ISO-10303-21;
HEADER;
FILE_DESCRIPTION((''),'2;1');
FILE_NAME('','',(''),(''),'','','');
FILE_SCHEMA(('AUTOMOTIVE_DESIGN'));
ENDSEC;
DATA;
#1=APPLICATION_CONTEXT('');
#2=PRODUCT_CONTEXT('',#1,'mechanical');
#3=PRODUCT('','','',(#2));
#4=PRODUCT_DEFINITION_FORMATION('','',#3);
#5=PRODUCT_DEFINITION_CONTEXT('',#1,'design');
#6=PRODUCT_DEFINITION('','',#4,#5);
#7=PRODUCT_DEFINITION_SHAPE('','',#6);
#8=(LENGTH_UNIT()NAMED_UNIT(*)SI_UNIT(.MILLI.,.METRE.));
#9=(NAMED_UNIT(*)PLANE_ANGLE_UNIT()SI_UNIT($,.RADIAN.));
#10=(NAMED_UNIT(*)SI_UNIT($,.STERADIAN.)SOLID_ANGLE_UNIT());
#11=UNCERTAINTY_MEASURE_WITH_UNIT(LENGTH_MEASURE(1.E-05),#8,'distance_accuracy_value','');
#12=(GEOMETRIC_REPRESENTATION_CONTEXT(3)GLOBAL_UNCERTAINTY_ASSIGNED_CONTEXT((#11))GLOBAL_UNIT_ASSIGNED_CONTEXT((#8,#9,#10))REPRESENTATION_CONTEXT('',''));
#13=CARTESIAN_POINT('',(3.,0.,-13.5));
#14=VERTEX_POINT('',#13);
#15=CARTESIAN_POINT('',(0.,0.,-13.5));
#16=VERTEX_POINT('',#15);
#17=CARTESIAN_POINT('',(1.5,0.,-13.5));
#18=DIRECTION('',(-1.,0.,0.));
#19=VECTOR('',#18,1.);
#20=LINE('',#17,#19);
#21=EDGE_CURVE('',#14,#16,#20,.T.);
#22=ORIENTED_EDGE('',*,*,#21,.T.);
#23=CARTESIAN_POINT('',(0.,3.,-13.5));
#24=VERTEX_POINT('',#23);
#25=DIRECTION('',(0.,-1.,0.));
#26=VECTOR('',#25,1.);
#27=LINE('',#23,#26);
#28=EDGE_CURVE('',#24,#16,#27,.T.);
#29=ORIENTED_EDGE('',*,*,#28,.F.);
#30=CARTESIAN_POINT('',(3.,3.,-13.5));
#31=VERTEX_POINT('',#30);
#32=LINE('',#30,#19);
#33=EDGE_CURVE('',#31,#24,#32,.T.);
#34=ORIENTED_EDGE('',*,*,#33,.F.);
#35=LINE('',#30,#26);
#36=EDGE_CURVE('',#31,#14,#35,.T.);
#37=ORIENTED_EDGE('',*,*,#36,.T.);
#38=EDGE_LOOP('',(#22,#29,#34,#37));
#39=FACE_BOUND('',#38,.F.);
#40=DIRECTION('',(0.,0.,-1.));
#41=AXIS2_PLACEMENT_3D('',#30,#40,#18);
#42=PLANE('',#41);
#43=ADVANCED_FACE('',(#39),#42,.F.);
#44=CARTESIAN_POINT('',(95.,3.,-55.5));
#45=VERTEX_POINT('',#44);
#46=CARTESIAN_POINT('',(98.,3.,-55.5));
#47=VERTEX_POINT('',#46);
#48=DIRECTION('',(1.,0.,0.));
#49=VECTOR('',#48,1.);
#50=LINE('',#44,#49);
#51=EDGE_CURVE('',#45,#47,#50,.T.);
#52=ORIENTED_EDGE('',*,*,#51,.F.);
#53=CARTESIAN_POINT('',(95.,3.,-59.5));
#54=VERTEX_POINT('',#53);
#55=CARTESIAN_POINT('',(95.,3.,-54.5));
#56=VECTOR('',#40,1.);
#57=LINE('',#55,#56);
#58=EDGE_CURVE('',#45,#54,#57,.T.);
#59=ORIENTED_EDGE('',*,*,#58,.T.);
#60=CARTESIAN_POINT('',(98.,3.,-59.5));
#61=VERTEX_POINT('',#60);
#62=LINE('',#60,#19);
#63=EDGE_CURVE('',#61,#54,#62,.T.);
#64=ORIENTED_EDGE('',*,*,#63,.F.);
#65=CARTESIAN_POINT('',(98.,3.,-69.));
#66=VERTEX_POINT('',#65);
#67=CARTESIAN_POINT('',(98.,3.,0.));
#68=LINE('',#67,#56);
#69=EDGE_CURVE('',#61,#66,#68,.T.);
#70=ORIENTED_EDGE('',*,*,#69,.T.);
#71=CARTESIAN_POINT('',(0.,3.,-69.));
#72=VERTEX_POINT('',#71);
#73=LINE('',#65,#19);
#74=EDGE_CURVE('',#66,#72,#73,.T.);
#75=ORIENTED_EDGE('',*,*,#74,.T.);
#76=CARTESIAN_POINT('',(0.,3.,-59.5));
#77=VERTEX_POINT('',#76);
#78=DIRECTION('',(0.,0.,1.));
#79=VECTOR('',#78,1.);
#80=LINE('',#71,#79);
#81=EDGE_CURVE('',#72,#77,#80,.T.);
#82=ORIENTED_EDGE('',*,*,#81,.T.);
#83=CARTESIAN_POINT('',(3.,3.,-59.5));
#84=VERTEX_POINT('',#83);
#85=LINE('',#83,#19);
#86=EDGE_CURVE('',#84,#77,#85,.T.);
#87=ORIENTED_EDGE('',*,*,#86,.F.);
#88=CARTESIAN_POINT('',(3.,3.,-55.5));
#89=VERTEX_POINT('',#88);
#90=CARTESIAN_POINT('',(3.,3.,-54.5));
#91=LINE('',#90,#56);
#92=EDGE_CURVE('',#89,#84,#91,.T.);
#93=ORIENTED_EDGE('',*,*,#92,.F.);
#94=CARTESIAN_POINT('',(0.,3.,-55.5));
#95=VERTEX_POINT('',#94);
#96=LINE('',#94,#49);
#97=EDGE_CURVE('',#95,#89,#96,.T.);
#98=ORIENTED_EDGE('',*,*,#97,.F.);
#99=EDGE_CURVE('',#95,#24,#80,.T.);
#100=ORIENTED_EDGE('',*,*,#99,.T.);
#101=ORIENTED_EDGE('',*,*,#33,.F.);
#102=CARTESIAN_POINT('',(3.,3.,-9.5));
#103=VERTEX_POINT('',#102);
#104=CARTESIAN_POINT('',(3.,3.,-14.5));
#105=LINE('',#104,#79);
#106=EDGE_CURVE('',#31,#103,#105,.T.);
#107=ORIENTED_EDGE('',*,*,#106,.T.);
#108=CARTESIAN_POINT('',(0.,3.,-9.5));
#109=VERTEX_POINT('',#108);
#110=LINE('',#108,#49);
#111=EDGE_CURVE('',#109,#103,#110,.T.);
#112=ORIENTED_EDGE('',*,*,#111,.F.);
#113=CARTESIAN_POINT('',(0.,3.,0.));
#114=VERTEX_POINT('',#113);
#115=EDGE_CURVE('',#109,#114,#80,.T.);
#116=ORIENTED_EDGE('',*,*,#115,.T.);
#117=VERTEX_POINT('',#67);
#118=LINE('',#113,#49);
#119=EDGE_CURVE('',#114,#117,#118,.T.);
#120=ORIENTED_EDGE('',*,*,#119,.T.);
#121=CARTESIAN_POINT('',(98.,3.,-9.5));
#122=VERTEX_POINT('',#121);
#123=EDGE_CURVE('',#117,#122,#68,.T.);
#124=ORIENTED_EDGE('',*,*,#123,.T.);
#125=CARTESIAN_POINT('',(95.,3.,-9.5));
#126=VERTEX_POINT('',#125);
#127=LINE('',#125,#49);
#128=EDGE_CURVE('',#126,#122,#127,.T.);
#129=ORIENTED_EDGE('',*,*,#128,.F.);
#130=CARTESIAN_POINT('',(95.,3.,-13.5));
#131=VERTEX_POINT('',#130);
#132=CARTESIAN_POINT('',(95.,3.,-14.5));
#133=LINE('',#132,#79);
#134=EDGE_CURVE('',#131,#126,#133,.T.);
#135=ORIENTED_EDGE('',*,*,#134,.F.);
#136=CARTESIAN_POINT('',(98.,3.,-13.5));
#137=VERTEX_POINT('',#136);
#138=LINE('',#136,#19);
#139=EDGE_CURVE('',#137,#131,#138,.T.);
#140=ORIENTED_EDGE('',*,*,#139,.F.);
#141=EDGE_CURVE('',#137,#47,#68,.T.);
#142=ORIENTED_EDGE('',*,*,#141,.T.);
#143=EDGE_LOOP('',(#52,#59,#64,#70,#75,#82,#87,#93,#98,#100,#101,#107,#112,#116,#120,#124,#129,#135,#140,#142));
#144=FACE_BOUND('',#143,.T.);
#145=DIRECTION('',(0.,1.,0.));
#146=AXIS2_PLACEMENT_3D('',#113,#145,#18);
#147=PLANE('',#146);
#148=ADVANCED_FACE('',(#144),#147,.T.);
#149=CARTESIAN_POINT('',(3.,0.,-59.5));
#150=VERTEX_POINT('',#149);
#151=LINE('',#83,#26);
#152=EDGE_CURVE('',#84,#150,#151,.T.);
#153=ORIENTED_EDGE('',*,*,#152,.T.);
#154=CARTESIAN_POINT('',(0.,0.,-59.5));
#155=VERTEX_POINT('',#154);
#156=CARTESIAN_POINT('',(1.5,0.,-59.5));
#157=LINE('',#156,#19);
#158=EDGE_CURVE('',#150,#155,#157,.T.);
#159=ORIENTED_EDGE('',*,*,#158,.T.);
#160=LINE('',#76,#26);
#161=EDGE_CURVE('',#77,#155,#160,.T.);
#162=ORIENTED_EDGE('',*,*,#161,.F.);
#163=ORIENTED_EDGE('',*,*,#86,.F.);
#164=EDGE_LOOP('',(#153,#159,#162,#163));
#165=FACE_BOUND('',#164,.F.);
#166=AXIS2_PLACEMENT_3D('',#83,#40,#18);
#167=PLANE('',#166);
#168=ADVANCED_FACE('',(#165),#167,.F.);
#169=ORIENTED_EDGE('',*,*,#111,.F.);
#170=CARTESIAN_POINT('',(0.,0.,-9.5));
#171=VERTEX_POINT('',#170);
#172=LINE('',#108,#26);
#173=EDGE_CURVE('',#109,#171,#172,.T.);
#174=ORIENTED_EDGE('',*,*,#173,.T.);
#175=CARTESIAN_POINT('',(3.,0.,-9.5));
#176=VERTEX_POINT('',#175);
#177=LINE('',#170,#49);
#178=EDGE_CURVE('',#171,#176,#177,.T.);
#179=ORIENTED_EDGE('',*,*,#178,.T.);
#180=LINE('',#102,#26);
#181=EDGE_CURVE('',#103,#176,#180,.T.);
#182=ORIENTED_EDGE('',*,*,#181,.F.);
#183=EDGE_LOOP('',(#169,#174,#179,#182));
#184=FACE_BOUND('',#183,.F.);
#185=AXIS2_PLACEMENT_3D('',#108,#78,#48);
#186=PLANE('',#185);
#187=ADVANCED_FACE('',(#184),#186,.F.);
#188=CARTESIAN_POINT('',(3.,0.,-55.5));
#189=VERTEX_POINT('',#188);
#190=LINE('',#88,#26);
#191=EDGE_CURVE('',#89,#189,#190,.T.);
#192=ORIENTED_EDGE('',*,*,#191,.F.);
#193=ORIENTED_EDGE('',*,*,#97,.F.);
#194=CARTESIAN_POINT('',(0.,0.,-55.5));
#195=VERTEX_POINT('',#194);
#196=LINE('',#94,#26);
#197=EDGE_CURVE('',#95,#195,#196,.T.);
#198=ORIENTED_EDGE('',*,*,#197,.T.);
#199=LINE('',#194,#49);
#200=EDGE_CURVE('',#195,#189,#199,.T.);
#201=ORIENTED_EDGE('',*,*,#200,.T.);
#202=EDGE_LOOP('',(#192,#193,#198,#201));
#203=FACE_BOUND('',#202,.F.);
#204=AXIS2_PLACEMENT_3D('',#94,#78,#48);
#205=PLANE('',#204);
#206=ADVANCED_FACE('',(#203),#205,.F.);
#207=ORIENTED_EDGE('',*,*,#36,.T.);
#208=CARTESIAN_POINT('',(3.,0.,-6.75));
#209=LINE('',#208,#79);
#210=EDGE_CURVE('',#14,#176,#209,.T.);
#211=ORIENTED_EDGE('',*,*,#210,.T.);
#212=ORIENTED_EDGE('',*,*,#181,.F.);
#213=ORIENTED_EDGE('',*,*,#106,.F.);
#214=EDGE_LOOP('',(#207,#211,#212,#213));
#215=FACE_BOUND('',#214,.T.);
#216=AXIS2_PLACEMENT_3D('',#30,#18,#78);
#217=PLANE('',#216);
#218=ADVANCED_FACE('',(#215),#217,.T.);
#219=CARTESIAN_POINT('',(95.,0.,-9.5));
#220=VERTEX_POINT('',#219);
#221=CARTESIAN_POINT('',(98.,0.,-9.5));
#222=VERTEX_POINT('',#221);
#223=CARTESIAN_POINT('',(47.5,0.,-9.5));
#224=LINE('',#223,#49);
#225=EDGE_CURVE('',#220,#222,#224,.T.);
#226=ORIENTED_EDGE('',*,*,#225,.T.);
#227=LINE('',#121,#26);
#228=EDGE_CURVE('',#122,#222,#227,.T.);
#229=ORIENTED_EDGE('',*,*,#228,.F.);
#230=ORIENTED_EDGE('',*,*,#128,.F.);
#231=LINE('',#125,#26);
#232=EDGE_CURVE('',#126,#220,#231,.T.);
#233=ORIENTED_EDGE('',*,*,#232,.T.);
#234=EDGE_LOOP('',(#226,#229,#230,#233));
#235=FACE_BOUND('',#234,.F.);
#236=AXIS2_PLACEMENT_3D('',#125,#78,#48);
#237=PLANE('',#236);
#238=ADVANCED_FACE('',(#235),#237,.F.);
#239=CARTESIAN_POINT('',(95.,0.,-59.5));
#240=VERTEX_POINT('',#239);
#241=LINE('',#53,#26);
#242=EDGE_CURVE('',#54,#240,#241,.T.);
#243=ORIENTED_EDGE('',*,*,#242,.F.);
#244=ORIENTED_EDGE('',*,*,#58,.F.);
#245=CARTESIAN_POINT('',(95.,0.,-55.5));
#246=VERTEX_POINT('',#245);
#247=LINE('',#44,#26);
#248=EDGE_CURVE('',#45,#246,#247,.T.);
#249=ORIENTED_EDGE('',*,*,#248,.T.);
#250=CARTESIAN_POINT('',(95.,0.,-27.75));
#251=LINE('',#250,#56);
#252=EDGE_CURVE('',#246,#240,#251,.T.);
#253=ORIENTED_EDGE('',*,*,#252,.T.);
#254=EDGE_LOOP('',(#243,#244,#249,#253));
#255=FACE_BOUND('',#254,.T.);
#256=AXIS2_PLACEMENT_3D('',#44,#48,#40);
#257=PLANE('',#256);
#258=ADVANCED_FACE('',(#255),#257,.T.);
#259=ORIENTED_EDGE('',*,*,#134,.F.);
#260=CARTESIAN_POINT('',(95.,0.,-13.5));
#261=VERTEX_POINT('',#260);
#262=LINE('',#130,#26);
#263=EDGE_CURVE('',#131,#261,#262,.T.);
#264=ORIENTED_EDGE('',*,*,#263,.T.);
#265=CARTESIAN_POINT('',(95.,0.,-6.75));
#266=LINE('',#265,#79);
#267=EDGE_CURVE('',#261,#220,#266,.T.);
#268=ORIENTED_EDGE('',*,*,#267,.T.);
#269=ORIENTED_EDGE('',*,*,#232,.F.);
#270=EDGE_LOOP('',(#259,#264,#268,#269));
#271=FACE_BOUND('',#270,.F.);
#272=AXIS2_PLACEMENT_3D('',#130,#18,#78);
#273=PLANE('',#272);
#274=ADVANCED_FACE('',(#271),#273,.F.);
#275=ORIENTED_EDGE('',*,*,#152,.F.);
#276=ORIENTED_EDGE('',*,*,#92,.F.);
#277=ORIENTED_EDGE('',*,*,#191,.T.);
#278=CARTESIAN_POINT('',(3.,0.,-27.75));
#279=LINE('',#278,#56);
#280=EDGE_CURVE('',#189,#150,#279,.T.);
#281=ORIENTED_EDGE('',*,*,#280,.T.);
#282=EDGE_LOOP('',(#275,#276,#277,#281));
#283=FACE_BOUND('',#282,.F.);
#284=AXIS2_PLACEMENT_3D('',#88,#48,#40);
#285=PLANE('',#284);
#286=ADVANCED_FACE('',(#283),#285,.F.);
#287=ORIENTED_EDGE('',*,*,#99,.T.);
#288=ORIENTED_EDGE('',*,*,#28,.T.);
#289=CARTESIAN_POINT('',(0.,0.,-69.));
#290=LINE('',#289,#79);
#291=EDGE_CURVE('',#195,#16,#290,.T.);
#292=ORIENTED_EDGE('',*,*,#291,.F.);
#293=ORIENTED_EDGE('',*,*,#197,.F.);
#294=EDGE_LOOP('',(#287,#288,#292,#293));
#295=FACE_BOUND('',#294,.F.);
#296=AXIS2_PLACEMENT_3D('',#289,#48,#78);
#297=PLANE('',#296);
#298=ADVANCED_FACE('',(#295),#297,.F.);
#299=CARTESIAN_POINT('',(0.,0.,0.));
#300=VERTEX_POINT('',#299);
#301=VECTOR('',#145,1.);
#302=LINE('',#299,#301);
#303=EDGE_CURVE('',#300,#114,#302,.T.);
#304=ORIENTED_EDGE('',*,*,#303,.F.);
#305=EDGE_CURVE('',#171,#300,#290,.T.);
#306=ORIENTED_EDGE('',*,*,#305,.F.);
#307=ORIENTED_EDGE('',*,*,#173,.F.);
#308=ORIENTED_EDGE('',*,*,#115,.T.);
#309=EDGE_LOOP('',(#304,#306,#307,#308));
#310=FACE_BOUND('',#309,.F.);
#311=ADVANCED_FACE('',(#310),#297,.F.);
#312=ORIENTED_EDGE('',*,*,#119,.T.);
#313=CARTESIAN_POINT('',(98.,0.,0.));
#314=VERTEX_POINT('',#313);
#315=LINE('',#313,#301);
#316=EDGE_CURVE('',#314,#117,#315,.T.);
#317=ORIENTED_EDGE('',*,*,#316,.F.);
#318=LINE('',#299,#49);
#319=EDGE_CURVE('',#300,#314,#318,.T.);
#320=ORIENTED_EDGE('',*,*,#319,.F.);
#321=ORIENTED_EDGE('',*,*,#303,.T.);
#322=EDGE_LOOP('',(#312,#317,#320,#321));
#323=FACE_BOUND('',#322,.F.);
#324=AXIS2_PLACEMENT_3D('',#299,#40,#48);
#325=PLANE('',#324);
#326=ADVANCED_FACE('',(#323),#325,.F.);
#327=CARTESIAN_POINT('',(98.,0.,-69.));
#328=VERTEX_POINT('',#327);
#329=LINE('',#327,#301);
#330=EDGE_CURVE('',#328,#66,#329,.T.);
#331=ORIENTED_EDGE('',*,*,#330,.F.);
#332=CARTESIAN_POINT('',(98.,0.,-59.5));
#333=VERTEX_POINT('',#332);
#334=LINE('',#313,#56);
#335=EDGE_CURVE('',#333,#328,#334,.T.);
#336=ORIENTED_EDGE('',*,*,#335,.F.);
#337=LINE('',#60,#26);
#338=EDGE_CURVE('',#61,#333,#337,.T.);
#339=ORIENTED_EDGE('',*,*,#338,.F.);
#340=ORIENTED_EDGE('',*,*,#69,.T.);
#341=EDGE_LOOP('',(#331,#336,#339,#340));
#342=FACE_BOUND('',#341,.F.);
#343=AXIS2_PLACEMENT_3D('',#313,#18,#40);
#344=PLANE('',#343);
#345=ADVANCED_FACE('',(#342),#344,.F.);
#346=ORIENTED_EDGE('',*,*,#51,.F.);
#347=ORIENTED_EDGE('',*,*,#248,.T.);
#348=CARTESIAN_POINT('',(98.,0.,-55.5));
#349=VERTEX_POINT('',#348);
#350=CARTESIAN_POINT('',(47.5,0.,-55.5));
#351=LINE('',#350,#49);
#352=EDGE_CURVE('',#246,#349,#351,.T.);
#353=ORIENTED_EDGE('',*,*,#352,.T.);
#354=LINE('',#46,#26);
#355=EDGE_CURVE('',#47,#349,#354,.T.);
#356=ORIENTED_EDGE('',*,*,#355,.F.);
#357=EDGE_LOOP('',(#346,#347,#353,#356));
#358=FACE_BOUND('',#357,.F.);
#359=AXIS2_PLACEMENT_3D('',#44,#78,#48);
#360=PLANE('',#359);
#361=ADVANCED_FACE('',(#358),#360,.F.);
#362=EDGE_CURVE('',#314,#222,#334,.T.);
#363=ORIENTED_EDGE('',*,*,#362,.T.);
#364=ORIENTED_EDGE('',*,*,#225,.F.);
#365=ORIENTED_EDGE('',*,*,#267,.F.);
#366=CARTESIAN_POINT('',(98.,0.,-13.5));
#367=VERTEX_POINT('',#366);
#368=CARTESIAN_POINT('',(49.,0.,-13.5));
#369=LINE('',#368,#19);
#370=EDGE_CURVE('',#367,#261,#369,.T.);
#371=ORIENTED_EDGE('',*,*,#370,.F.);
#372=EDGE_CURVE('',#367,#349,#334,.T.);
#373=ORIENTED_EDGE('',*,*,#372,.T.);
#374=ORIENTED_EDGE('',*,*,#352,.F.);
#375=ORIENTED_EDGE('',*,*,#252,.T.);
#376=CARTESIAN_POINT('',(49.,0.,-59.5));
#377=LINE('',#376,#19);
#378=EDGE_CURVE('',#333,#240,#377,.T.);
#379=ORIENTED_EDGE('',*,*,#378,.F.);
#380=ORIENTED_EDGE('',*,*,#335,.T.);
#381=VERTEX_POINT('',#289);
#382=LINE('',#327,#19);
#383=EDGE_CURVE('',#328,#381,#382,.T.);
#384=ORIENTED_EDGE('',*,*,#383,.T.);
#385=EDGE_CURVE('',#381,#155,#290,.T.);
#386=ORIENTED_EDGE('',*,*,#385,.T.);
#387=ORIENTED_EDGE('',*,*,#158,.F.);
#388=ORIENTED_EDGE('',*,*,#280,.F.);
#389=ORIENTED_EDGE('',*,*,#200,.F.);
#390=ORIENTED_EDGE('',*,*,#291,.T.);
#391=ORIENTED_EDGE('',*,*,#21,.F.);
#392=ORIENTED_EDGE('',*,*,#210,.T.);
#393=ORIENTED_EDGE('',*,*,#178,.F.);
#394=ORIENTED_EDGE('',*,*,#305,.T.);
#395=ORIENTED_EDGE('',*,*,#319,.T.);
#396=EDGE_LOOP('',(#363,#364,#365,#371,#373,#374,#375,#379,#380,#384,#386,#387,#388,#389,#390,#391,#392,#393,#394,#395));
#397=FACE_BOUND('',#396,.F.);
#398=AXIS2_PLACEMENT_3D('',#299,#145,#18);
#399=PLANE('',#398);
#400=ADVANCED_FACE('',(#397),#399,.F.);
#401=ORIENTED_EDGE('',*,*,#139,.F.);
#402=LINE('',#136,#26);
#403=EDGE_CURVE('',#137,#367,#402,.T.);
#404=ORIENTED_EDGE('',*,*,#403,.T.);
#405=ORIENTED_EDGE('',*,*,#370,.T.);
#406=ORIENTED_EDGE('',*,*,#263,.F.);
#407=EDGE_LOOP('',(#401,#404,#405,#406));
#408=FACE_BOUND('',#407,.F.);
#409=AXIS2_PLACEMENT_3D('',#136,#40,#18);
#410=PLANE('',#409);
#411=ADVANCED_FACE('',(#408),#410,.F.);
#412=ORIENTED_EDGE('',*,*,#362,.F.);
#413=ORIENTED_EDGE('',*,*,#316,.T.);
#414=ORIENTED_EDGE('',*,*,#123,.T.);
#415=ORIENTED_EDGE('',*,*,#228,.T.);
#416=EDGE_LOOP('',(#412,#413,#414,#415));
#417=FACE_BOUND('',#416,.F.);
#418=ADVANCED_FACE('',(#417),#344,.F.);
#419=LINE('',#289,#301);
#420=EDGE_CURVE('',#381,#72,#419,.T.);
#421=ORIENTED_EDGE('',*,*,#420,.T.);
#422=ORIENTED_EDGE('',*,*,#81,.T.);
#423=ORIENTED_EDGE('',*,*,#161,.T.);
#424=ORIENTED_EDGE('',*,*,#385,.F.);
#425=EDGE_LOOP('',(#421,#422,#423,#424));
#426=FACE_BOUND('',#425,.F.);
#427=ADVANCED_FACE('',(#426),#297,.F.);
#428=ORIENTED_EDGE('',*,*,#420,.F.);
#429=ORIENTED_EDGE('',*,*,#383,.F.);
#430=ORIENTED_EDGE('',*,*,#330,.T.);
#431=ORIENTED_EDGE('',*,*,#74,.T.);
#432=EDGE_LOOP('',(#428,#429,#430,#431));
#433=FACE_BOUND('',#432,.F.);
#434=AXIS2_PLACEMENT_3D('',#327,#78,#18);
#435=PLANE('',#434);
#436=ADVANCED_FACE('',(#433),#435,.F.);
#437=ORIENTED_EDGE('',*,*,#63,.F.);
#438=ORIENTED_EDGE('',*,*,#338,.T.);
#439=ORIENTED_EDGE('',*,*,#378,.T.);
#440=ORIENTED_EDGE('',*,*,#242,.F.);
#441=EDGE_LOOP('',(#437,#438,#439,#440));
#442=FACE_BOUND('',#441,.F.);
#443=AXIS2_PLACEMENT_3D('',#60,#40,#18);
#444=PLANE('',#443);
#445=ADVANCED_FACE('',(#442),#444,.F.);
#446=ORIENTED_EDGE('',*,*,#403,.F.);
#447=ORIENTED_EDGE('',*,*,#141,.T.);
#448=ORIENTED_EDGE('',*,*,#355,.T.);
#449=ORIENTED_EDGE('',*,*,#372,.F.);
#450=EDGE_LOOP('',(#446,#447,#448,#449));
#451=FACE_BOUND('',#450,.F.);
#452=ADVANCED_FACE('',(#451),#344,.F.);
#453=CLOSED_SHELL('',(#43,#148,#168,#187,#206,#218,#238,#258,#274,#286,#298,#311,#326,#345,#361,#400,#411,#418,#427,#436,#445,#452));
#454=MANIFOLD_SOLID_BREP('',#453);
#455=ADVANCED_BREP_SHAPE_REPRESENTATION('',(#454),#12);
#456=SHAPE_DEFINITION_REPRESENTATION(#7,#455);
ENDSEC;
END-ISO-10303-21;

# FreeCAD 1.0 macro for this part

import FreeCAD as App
import Part
import Sketcher

V = App.Vector

doc = App.newDocument("Part")
body = doc.addObject("PartDesign::Body", "Body")

sketch1 = body.newObject("Sketcher::SketchObject", "Sketch")
sketch1.AttachmentSupport = (doc.getObject("XZ_Plane"), [""])
sketch1.MapMode = "FlatFace"
sketch1.addGeometry([
    Part.LineSegment(V(0, -69, 0), V(0, 0, 0)),
    Part.LineSegment(V(0, 0, 0), V(98, 0, 0)),
    Part.LineSegment(V(98, 0, 0), V(98, -69, 0)),
    Part.LineSegment(V(98, -69, 0), V(0, -69, 0)),
], False)
sketch1.addConstraint([
    Sketcher.Constraint("Coincident", 0, 2, 1, 1),
    Sketcher.Constraint("Coincident", 1, 2, 2, 1),
    Sketcher.Constraint("Coincident", 2, 2, 3, 1),
    Sketcher.Constraint("Coincident", 3, 2, 0, 1),
    Sketcher.Constraint("Vertical", 0),
    Sketcher.Constraint("Horizontal", 1),
    Sketcher.Constraint("Vertical", 2),
    Sketcher.Constraint("Horizontal", 3),
    Sketcher.Constraint("Coincident", 0, 2, -1, 1),
    Sketcher.Constraint("DistanceX", 1, 1, 1, 2, 98.0),
    Sketcher.Constraint("DistanceY", 0, 1, 0, 2, 69.0),
])
pad1 = body.newObject("PartDesign::Pad", "Pad")
pad1.Profile = sketch1
pad1.Length = 3
pad1.Reversed = True

sketch2 = body.newObject("Sketcher::SketchObject", "Sketch001")
sketch2.AttachmentSupport = (doc.getObject("XZ_Plane"), [""])
sketch2.MapMode = "FlatFace"
sketch2.AttachmentOffset = App.Placement(V(0, 0, -3), App.Rotation())
sketch2.addGeometry([
    Part.LineSegment(V(3, -59.5, 0), V(0, -59.5, 0)),
    Part.LineSegment(V(0, -59.5, 0), V(0, -55.5, 0)),
    Part.LineSegment(V(0, -55.5, 0), V(3, -55.5, 0)),
    Part.LineSegment(V(3, -55.5, 0), V(3, -59.5, 0)),
    Part.LineSegment(V(98, -55.5, 0), V(98, -59.5, 0)),
    Part.LineSegment(V(98, -59.5, 0), V(95, -59.5, 0)),
    Part.LineSegment(V(95, -59.5, 0), V(95, -55.5, 0)),
    Part.LineSegment(V(95, -55.5, 0), V(98, -55.5, 0)),
    Part.LineSegment(V(3, -13.5, 0), V(0, -13.5, 0)),
    Part.LineSegment(V(0, -13.5, 0), V(0, -9.5, 0)),
    Part.LineSegment(V(0, -9.5, 0), V(3, -9.5, 0)),
    Part.LineSegment(V(3, -9.5, 0), V(3, -13.5, 0)),
    Part.LineSegment(V(98, -9.5, 0), V(98, -13.5, 0)),
    Part.LineSegment(V(98, -13.5, 0), V(95, -13.5, 0)),
    Part.LineSegment(V(95, -13.5, 0), V(95, -9.5, 0)),
    Part.LineSegment(V(95, -9.5, 0), V(98, -9.5, 0)),
], False)
sketch2.addConstraint([
    Sketcher.Constraint("Coincident", 0, 2, 1, 1),
    Sketcher.Constraint("Coincident", 1, 2, 2, 1),
    Sketcher.Constraint("Coincident", 2, 2, 3, 1),
    Sketcher.Constraint("Coincident", 3, 2, 0, 1),
    Sketcher.Constraint("Coincident", 4, 2, 5, 1),
    Sketcher.Constraint("Coincident", 5, 2, 6, 1),
    Sketcher.Constraint("Coincident", 6, 2, 7, 1),
    Sketcher.Constraint("Coincident", 7, 2, 4, 1),
    Sketcher.Constraint("Coincident", 8, 2, 9, 1),
    Sketcher.Constraint("Coincident", 9, 2, 10, 1),
    Sketcher.Constraint("Coincident", 10, 2, 11, 1),
    Sketcher.Constraint("Coincident", 11, 2, 8, 1),
    Sketcher.Constraint("Coincident", 12, 2, 13, 1),
    Sketcher.Constraint("Coincident", 13, 2, 14, 1),
    Sketcher.Constraint("Coincident", 14, 2, 15, 1),
    Sketcher.Constraint("Coincident", 15, 2, 12, 1),
    Sketcher.Constraint("Horizontal", 0),
    Sketcher.Constraint("Vertical", 1),
    Sketcher.Constraint("Horizontal", 2),
    Sketcher.Constraint("Vertical", 3),
    Sketcher.Constraint("Vertical", 4),
    Sketcher.Constraint("Horizontal", 5),
    Sketcher.Constraint("Vertical", 6),
    Sketcher.Constraint("Horizontal", 7),
    Sketcher.Constraint("Horizontal", 8),
    Sketcher.Constraint("Vertical", 9),
    Sketcher.Constraint("Horizontal", 10),
    Sketcher.Constraint("Vertical", 11),
    Sketcher.Constraint("Vertical", 12),
    Sketcher.Constraint("Horizontal", 13),
    Sketcher.Constraint("Vertical", 14),
    Sketcher.Constraint("Horizontal", 15),
    Sketcher.Constraint("PointOnObject", 0, 2, -2),
    Sketcher.Constraint("PointOnObject", 8, 2, -2),
    Sketcher.Constraint("Horizontal", 3, 2, 4, 2),
    Sketcher.Constraint("Horizontal", 2, 2, 6, 2),
    Sketcher.Constraint("Horizontal", 11, 2, 12, 2),
    Sketcher.Constraint("Horizontal", 10, 2, 14, 2),
    Sketcher.Constraint("Vertical", 3, 2, 10, 2),
    Sketcher.Constraint("Vertical", 7, 2, 12, 2),
    Sketcher.Constraint("Vertical", 6, 2, 13, 2),
    Sketcher.Constraint("Equal", 2, 5),
    Sketcher.Constraint("Equal", 6, 9),
    Sketcher.Constraint("DistanceX", 0, 2, 0, 1, 3.0),
    Sketcher.Constraint("DistanceY", 1, 1, 1, 2, 4.0),
    Sketcher.Constraint("DistanceX", -1, 1, 4, 2, 98.0),
    Sketcher.Constraint("DistanceY", 1, 2, 8, 2, 42.0),
    Sketcher.Constraint("DistanceY", 0, 2, -1, 1, 59.5),
])
pocket1 = body.newObject("PartDesign::Pocket", "Pocket")
pocket1.Profile = sketch2
pocket1.Type = "ThroughAll"
pocket1.Reversed = True

doc.recompute()
